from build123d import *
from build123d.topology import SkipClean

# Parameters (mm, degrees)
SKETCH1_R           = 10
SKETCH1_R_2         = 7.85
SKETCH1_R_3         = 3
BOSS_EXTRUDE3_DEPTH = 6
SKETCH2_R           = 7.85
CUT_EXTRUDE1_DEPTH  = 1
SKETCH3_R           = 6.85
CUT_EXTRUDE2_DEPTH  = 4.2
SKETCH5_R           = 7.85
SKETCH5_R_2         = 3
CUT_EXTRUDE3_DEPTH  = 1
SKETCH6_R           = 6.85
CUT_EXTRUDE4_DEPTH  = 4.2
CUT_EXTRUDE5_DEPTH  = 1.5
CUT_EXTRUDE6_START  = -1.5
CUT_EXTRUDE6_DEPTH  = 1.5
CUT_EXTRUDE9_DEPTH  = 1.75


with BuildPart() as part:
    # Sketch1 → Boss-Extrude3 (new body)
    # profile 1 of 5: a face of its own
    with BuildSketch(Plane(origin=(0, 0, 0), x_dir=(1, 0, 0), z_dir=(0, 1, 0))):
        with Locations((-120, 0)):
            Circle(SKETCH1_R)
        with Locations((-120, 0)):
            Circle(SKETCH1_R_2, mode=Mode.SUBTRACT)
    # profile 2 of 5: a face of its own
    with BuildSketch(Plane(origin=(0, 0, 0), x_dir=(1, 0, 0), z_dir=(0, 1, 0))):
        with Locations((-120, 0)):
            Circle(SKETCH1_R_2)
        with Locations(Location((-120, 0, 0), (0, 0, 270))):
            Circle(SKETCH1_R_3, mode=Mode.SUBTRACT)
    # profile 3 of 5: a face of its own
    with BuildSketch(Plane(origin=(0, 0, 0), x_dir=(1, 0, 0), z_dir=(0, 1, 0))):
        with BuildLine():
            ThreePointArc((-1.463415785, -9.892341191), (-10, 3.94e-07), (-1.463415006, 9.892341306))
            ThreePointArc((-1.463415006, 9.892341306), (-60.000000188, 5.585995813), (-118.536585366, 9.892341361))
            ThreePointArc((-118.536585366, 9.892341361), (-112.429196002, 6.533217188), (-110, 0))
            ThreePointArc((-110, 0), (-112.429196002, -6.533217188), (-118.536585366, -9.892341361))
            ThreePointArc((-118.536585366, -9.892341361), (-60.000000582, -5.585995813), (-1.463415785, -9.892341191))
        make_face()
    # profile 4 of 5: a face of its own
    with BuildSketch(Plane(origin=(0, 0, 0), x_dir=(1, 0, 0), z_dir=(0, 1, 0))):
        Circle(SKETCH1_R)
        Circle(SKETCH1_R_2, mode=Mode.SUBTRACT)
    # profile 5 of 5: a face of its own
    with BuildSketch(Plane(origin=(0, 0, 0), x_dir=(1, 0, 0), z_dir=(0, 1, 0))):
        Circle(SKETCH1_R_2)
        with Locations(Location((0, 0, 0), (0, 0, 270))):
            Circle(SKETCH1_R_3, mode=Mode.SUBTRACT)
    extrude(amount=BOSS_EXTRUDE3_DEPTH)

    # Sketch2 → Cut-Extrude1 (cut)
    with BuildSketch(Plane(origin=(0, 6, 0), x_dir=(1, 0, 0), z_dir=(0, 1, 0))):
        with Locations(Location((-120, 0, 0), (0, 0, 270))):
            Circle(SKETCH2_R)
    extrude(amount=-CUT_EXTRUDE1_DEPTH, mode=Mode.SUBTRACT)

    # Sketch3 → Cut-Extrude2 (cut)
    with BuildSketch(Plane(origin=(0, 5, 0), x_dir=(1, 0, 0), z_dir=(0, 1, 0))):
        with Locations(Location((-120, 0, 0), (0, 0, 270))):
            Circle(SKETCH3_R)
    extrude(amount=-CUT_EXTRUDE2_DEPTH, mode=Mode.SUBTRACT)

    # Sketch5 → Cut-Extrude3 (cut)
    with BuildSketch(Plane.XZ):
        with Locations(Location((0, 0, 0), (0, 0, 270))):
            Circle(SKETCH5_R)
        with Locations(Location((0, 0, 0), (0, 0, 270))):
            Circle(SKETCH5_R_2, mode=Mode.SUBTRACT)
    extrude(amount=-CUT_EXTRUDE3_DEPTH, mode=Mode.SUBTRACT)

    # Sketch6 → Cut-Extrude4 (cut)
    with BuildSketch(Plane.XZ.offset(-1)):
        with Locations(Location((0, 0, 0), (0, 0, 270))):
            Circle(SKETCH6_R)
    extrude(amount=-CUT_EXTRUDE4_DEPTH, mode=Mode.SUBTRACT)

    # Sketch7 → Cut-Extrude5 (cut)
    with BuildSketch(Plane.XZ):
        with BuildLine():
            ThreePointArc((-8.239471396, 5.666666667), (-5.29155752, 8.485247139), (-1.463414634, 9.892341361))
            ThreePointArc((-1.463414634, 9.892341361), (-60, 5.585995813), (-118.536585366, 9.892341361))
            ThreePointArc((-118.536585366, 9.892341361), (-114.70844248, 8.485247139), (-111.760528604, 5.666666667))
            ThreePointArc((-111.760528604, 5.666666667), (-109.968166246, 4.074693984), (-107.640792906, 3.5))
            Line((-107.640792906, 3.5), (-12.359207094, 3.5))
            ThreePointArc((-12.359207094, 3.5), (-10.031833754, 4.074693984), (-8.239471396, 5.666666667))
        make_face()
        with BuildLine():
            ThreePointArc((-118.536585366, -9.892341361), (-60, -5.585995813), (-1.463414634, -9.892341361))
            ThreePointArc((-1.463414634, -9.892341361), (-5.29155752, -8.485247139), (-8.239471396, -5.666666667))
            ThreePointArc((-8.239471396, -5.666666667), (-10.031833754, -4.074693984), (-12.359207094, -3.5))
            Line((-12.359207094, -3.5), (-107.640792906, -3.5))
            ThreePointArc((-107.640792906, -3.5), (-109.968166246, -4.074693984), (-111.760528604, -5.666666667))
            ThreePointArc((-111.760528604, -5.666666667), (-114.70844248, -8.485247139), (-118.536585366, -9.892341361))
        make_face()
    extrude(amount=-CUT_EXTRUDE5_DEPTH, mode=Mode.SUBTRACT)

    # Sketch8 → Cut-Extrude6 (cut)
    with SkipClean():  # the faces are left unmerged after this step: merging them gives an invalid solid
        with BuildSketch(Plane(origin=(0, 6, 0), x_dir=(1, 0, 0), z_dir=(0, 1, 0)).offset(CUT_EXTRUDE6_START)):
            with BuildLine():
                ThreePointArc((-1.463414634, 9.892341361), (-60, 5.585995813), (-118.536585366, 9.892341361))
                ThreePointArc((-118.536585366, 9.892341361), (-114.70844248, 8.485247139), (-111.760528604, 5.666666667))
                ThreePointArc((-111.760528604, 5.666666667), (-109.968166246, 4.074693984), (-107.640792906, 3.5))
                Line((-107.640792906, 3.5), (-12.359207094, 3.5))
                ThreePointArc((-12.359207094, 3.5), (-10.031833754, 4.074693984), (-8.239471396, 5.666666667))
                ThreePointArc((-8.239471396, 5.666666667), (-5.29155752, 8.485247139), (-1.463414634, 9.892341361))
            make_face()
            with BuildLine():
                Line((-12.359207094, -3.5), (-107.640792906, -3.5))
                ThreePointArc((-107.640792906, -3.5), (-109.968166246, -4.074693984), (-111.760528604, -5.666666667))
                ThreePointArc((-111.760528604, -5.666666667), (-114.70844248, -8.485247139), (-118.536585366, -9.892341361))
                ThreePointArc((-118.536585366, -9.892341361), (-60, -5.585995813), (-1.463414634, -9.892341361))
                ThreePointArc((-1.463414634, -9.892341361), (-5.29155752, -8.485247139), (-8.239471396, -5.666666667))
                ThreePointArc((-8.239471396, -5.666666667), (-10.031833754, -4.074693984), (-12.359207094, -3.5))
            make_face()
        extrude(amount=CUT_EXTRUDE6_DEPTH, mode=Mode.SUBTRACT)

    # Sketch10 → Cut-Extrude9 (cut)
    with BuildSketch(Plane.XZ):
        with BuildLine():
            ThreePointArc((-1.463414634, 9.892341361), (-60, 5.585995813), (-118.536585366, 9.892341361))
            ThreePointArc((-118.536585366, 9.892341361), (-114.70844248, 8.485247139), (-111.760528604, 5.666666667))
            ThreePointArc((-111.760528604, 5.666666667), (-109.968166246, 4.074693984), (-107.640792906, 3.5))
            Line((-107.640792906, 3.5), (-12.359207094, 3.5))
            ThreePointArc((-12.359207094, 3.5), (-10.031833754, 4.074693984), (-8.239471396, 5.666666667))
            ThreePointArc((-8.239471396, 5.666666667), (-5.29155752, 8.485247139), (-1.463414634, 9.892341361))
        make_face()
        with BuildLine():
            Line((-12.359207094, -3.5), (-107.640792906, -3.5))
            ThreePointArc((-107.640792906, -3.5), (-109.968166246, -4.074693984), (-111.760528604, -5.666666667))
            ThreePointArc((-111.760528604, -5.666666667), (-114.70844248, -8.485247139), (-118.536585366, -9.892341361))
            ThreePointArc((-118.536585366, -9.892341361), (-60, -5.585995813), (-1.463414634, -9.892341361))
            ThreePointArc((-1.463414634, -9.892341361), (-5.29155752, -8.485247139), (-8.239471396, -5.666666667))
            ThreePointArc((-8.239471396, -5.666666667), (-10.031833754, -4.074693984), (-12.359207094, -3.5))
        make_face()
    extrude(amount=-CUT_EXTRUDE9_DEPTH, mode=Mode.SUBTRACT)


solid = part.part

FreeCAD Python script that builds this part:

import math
import FreeCAD as App
import Part
import Sketcher

V = App.Vector
Q = App.Units.Quantity

doc = App.newDocument("Part")
body = doc.addObject("PartDesign::Body", "Body")

sketch1 = body.newObject("Sketcher::SketchObject", "Sketch")
sketch1.AttachmentSupport = (doc.getObject("XZ_Plane"), [""])
sketch1.MapMode = "FlatFace"
sketch1.addGeometry([
    Part.ArcOfCircle(Part.Circle(V(-120, 0, 0), V(0, 0, 1), 10), math.radians(82), math.radians(278)),
    Part.ArcOfCircle(Part.Circle(V(-60, 405.6, 0), V(0, 0, 1), 400), math.radians(-98.41), math.radians(-81.59)),
    Part.ArcOfCircle(Part.Circle(V(0, 0, 0), V(0, 0, 1), 10), math.radians(-98), math.radians(98)),
    Part.ArcOfCircle(Part.Circle(V(-60, -405.6, 0), V(0, 0, 1), 400), math.radians(81.59), math.radians(98.41)),
    Part.Circle(V(-120, 0, 0), V(0, 0, 1), 3),
    Part.Circle(V(0, 0, 0), V(0, 0, 1), 3),
], False)
sketch1.addConstraint([
    Sketcher.Constraint("Tangent", 0, 1, 1, 1),
    Sketcher.Constraint("Tangent", 1, 2, 2, 2),
    Sketcher.Constraint("Tangent", 2, 1, 3, 1),
    Sketcher.Constraint("Tangent", 3, 2, 0, 2),
    Sketcher.Constraint("Coincident", 2, 3, -1, 1),
    Sketcher.Constraint("Coincident", 5, 3, -1, 1),
    Sketcher.Constraint("Coincident", 4, 3, 0, 3),
    Sketcher.Constraint("Equal", 0, 2),
    Sketcher.Constraint("Equal", 1, 3),
    Sketcher.Constraint("Equal", 4, 5),
    Sketcher.Constraint("PointOnObject", 0, 3, -1),
    Sketcher.Constraint("Diameter", 4, Q("6 mm")),
    Sketcher.Constraint("Radius", 0, Q("10 mm")),
    Sketcher.Constraint("Radius", 1, Q("400 mm")),
    Sketcher.Constraint("DistanceX", 0, 3, -1, 1, Q("120 mm")),
])
pad1 = body.newObject("PartDesign::Pad", "Pad")
pad1.Profile = sketch1
pad1.Length = 6
pad1.Reversed = True

sketch2 = body.newObject("Sketcher::SketchObject", "Sketch001")
sketch2.AttachmentSupport = (doc.getObject("XZ_Plane"), [""])
sketch2.MapMode = "FlatFace"
sketch2.AttachmentOffset = App.Placement(V(0, 0, -6), App.Rotation())
sketch2.addGeometry(Part.Circle(V(-120, 0, 0), V(0, 0, 1), 8), False)
sketch2.addConstraint([
    Sketcher.Constraint("PointOnObject", 0, 3, -1),
    Sketcher.Constraint("Diameter", 0, Q("15.7 mm")),
    Sketcher.Constraint("DistanceX", 0, 3, -1, 1, Q("120 mm")),
])
pocket1 = body.newObject("PartDesign::Pocket", "Pocket")
pocket1.Profile = sketch2
pocket1.Length = 1
pocket1.Reversed = True

sketch3 = body.newObject("Sketcher::SketchObject", "Sketch002")
sketch3.AttachmentSupport = (doc.getObject("XZ_Plane"), [""])
sketch3.MapMode = "FlatFace"
sketch3.AttachmentOffset = App.Placement(V(0, 0, -5), App.Rotation())
sketch3.addGeometry(Part.Circle(V(-120, 0, 0), V(0, 0, 1), 7), False)
sketch3.addConstraint([
    Sketcher.Constraint("PointOnObject", 0, 3, -1),
    Sketcher.Constraint("Diameter", 0, Q("13.7 mm")),
    Sketcher.Constraint("DistanceX", 0, 3, -1, 1, Q("120 mm")),
])
pocket2 = body.newObject("PartDesign::Pocket", "Pocket001")
pocket2.Profile = sketch3
pocket2.Length = 4.2
pocket2.Reversed = True

sketch4 = body.newObject("Sketcher::SketchObject", "Sketch003")
sketch4.AttachmentSupport = (doc.getObject("XZ_Plane"), [""])
sketch4.MapMode = "FlatFace"
sketch4.addGeometry([
    Part.Circle(V(0, 0, 0), V(0, 0, 1), 7.8),
    Part.Circle(V(0, 0, 0), V(0, 0, 1), 3),
], False)
sketch4.addConstraint([
    Sketcher.Constraint("Coincident", 0, 3, -1, 1),
    Sketcher.Constraint("Coincident", 1, 3, -1, 1),
    Sketcher.Constraint("Diameter", 1, Q("6 mm")),
    Sketcher.Constraint("Diameter", 0, Q("15.7 mm")),
])
pocket3 = body.newObject("PartDesign::Pocket", "Pocket002")
pocket3.Profile = sketch4
pocket3.Length = 1

sketch5 = body.newObject("Sketcher::SketchObject", "Sketch004")
sketch5.AttachmentSupport = (doc.getObject("XZ_Plane"), [""])
sketch5.MapMode = "FlatFace"
sketch5.AttachmentOffset = App.Placement(V(0, 0, -1), App.Rotation())
sketch5.addGeometry(Part.Circle(V(0, 0, 0), V(0, 0, 1), 7), False)
sketch5.addConstraint([
    Sketcher.Constraint("Coincident", 0, 3, -1, 1),
    Sketcher.Constraint("Diameter", 0, Q("13.7 mm")),
])
pocket4 = body.newObject("PartDesign::Pocket", "Pocket003")
pocket4.Profile = sketch5
pocket4.Length = 4.2

sketch6 = body.newObject("Sketcher::SketchObject", "Sketch005")
sketch6.AttachmentSupport = (doc.getObject("XZ_Plane"), [""])
sketch6.MapMode = "FlatFace"
sketch6.addGeometry([
    Part.ArcOfCircle(Part.Circle(V(0, 0, 0), V(0, 0, 1), 10), math.radians(98), math.radians(145)),
    Part.ArcOfCircle(Part.Circle(V(-60, 405.6, 0), V(0, 0, 1), 400), math.radians(-98.41), math.radians(-81.59)),
    Part.ArcOfCircle(Part.Circle(V(-120, 0, 0), V(0, 0, 1), 10), math.radians(35), math.radians(82)),
    Part.ArcOfCircle(Part.Circle(V(-107.6, 8.5, 0), V(0, 0, 1), 5), math.radians(-145), math.radians(-90)),
    Part.LineSegment(V(-107.6, 3.5, 0), V(-12.4, 3.5, 0)),
    Part.ArcOfCircle(Part.Circle(V(-12.4, 8.5, 0), V(0, 0, 1), 5), math.radians(-90), math.radians(-35)),
    Part.ArcOfCircle(Part.Circle(V(-60, -405.6, 0), V(0, 0, 1), 400), math.radians(81.59), math.radians(98.41)),
    Part.ArcOfCircle(Part.Circle(V(0, 0, 0), V(0, 0, 1), 10), math.radians(-145), math.radians(-98)),
    Part.ArcOfCircle(Part.Circle(V(-12.4, -8.5, 0), V(0, 0, 1), 5), math.radians(35), math.radians(90)),
    Part.LineSegment(V(-12.4, -3.5, 0), V(-107.6, -3.5, 0)),
    Part.ArcOfCircle(Part.Circle(V(-107.6, -8.5, 0), V(0, 0, 1), 5), math.radians(90), math.radians(145)),
    Part.ArcOfCircle(Part.Circle(V(-120, 0, 0), V(0, 0, 1), 10), math.radians(-82), math.radians(-35)),
], False)
sketch6.addConstraint([
    Sketcher.Constraint("Tangent", 0, 1, 1, 2),
    Sketcher.Constraint("Tangent", 1, 1, 2, 2),
    Sketcher.Constraint("Tangent", 2, 1, 3, 1),
    Sketcher.Constraint("Tangent", 3, 2, 4, 1),
    Sketcher.Constraint("Tangent", 4, 2, 5, 1),
    Sketcher.Constraint("Tangent", 5, 2, 0, 2),
    Sketcher.Constraint("Tangent", 6, 1, 7, 2),
    Sketcher.Constraint("Tangent", 7, 1, 8, 1),
    Sketcher.Constraint("Tangent", 8, 2, 9, 1),
    Sketcher.Constraint("Tangent", 9, 2, 10, 1),
    Sketcher.Constraint("Tangent", 10, 2, 11, 2),
    Sketcher.Constraint("Tangent", 11, 1, 6, 2),
    Sketcher.Constraint("Horizontal", 4),
    Sketcher.Constraint("Horizontal", 9),
    Sketcher.Constraint("Coincident", 0, 3, -1, 1),
    Sketcher.Constraint("Coincident", 7, 3, -1, 1),
    Sketcher.Constraint("Coincident", 11, 3, 2, 3),
    Sketcher.Constraint("Equal", 0, 2),
    Sketcher.Constraint("Equal", 3, 5),
    Sketcher.Constraint("Equal", 1, 6),
    Sketcher.Constraint("Equal", 2, 7),
    Sketcher.Constraint("Equal", 5, 8),
    Sketcher.Constraint("Equal", 8, 10),
    Sketcher.Constraint("Equal", 7, 11),
    Sketcher.Constraint("Symmetric", 3, 3, 10, 3, -1),
    Sketcher.Constraint("Radius", 0, Q("10 mm")),
    Sketcher.Constraint("Radius", 1, Q("400 mm")),
    Sketcher.Constraint("Radius", 3, Q("5 mm")),
    Sketcher.Constraint("DistanceX", 1, 3, -1, 1, Q("60 mm")),
    Sketcher.Constraint("DistanceY", 8, 3, 5, 3, Q("17 mm")),
])
pocket5 = body.newObject("PartDesign::Pocket", "Pocket004")
pocket5.Profile = sketch6
pocket5.Length = 1.5

sketch7 = body.newObject("Sketcher::SketchObject", "Sketch006")
sketch7.AttachmentSupport = (doc.getObject("XZ_Plane"), [""])
sketch7.MapMode = "FlatFace"
sketch7.AttachmentOffset = App.Placement(V(0, 0, -4.5), App.Rotation())
sketch7.addGeometry([
    Part.ArcOfCircle(Part.Circle(V(-60, -405.6, 0), V(0, 0, 1), 400), math.radians(81.59), math.radians(98.41)),
    Part.ArcOfCircle(Part.Circle(V(-120, 0, 0), V(0, 0, 1), 10), math.radians(-82), math.radians(-35)),
    Part.ArcOfCircle(Part.Circle(V(-107.6, -8.5, 0), V(0, 0, 1), 5), math.radians(90), math.radians(145)),
    Part.LineSegment(V(-107.6, -3.5, 0), V(-12.4, -3.5, 0)),
    Part.ArcOfCircle(Part.Circle(V(-12.4, -8.5, 0), V(0, 0, 1), 5), math.radians(35), math.radians(90)),
    Part.ArcOfCircle(Part.Circle(V(0, 0, 0), V(0, 0, 1), 10), math.radians(-145), math.radians(-98)),
    Part.LineSegment(V(-12.4, 3.5, 0), V(-107.6, 3.5, 0)),
    Part.ArcOfCircle(Part.Circle(V(-107.6, 8.5, 0), V(0, 0, 1), 5), math.radians(-145), math.radians(-90)),
    Part.ArcOfCircle(Part.Circle(V(-120, 0, 0), V(0, 0, 1), 10), math.radians(35), math.radians(82)),
    Part.ArcOfCircle(Part.Circle(V(-60, 405.6, 0), V(0, 0, 1), 400), math.radians(-98.41), math.radians(-81.59)),
    Part.ArcOfCircle(Part.Circle(V(0, 0, 0), V(0, 0, 1), 10), math.radians(98), math.radians(145)),
    Part.ArcOfCircle(Part.Circle(V(-12.4, 8.5, 0), V(0, 0, 1), 5), math.radians(-90), math.radians(-35)),
], False)
sketch7.addConstraint([
    Sketcher.Constraint("Tangent", 0, 2, 1, 1),
    Sketcher.Constraint("Tangent", 1, 2, 2, 2),
    Sketcher.Constraint("Tangent", 2, 1, 3, 1),
    Sketcher.Constraint("Tangent", 3, 2, 4, 2),
    Sketcher.Constraint("Tangent", 4, 1, 5, 1),
    Sketcher.Constraint("Tangent", 5, 2, 0, 1),
    Sketcher.Constraint("Tangent", 6, 2, 7, 2),
    Sketcher.Constraint("Tangent", 7, 1, 8, 1),
    Sketcher.Constraint("Tangent", 8, 2, 9, 1),
    Sketcher.Constraint("Tangent", 9, 2, 10, 1),
    Sketcher.Constraint("Tangent", 10, 2, 11, 2),
    Sketcher.Constraint("Tangent", 11, 1, 6, 1),
    Sketcher.Constraint("Horizontal", 3),
    Sketcher.Constraint("Horizontal", 6),
    Sketcher.Constraint("Coincident", 5, 3, -1, 1),
    Sketcher.Constraint("Coincident", 10, 3, -1, 1),
    Sketcher.Constraint("Coincident", 8, 3, 1, 3),
    Sketcher.Constraint("Equal", 2, 4),
    Sketcher.Constraint("Equal", 1, 5),
    Sketcher.Constraint("Equal", 4, 7),
    Sketcher.Constraint("Equal", 5, 8),
    Sketcher.Constraint("Equal", 0, 9),
    Sketcher.Constraint("Equal", 8, 10),
    Sketcher.Constraint("Equal", 7, 11),
    Sketcher.Constraint("Symmetric", 2, 3, 7, 3, -1),
    Sketcher.Constraint("Radius", 0, Q("400 mm")),
    Sketcher.Constraint("Radius", 1, Q("10 mm")),
    Sketcher.Constraint("Radius", 2, Q("5 mm")),
    Sketcher.Constraint("DistanceX", 0, 3, -1, 1, Q("60 mm")),
    Sketcher.Constraint("DistanceY", 2, 3, 7, 3, Q("17 mm")),
])
pocket6 = body.newObject("PartDesign::Pocket", "Pocket005")
pocket6.Profile = sketch7
pocket6.Length = 1.5

sketch8 = body.newObject("Sketcher::SketchObject", "Sketch007")
sketch8.AttachmentSupport = (doc.getObject("XZ_Plane"), [""])
sketch8.MapMode = "FlatFace"
sketch8.addGeometry([
    Part.ArcOfCircle(Part.Circle(V(-60, 405.6, 0), V(0, 0, 1), 400), math.radians(-98.41), math.radians(-81.59)),
    Part.ArcOfCircle(Part.Circle(V(-120, 0, 0), V(0, 0, 1), 10), math.radians(35), math.radians(82)),
    Part.ArcOfCircle(Part.Circle(V(-107.6, 8.5, 0), V(0, 0, 1), 5), math.radians(-145), math.radians(-90)),
    Part.LineSegment(V(-107.6, 3.5, 0), V(-12.4, 3.5, 0)),
    Part.ArcOfCircle(Part.Circle(V(-12.4, 8.5, 0), V(0, 0, 1), 5), math.radians(-90), math.radians(-35)),
    Part.ArcOfCircle(Part.Circle(V(0, 0, 0), V(0, 0, 1), 10), math.radians(98), math.radians(145)),
    Part.LineSegment(V(-12.4, -3.5, 0), V(-107.6, -3.5, 0)),
    Part.ArcOfCircle(Part.Circle(V(-107.6, -8.5, 0), V(0, 0, 1), 5), math.radians(90), math.radians(145)),
    Part.ArcOfCircle(Part.Circle(V(-120, 0, 0), V(0, 0, 1), 10), math.radians(-82), math.radians(-35)),
    Part.ArcOfCircle(Part.Circle(V(-60, -405.6, 0), V(0, 0, 1), 400), math.radians(81.59), math.radians(98.41)),
    Part.ArcOfCircle(Part.Circle(V(0, 0, 0), V(0, 0, 1), 10), math.radians(-145), math.radians(-98)),
    Part.ArcOfCircle(Part.Circle(V(-12.4, -8.5, 0), V(0, 0, 1), 5), math.radians(35), math.radians(90)),
], False)
sketch8.addConstraint([
    Sketcher.Constraint("Tangent", 0, 1, 1, 2),
    Sketcher.Constraint("Tangent", 1, 1, 2, 1),
    Sketcher.Constraint("Tangent", 2, 2, 3, 1),
    Sketcher.Constraint("Tangent", 3, 2, 4, 1),
    Sketcher.Constraint("Tangent", 4, 2, 5, 2),
    Sketcher.Constraint("Tangent", 5, 1, 0, 2),
    Sketcher.Constraint("Tangent", 6, 2, 7, 1),
    Sketcher.Constraint("Tangent", 7, 2, 8, 2),
    Sketcher.Constraint("Tangent", 8, 1, 9, 2),
    Sketcher.Constraint("Tangent", 9, 1, 10, 2),
    Sketcher.Constraint("Tangent", 10, 1, 11, 1),
    Sketcher.Constraint("Tangent", 11, 2, 6, 1),
    Sketcher.Constraint("Horizontal", 3),
    Sketcher.Constraint("Horizontal", 6),
    Sketcher.Constraint("Coincident", 5, 3, -1, 1),
    Sketcher.Constraint("Coincident", 10, 3, -1, 1),
    Sketcher.Constraint("Coincident", 8, 3, 1, 3),
    Sketcher.Constraint("Equal", 2, 4),
    Sketcher.Constraint("Equal", 1, 5),
    Sketcher.Constraint("Equal", 4, 7),
    Sketcher.Constraint("Equal", 5, 8),
    Sketcher.Constraint("Equal", 0, 9),
    Sketcher.Constraint("Equal", 8, 10),
    Sketcher.Constraint("Equal", 7, 11),
    Sketcher.Constraint("Symmetric", 2, 3, 7, 3, -1),
    Sketcher.Constraint("Radius", 0, Q("400 mm")),
    Sketcher.Constraint("Radius", 1, Q("10 mm")),
    Sketcher.Constraint("Radius", 2, Q("5 mm")),
    Sketcher.Constraint("DistanceX", 0, 3, -1, 1, Q("60 mm")),
    Sketcher.Constraint("DistanceY", 7, 3, 2, 3, Q("17 mm")),
])
pocket7 = body.newObject("PartDesign::Pocket", "Pocket006")
pocket7.Profile = sketch8
pocket7.Length = 1.75

doc.recompute()
